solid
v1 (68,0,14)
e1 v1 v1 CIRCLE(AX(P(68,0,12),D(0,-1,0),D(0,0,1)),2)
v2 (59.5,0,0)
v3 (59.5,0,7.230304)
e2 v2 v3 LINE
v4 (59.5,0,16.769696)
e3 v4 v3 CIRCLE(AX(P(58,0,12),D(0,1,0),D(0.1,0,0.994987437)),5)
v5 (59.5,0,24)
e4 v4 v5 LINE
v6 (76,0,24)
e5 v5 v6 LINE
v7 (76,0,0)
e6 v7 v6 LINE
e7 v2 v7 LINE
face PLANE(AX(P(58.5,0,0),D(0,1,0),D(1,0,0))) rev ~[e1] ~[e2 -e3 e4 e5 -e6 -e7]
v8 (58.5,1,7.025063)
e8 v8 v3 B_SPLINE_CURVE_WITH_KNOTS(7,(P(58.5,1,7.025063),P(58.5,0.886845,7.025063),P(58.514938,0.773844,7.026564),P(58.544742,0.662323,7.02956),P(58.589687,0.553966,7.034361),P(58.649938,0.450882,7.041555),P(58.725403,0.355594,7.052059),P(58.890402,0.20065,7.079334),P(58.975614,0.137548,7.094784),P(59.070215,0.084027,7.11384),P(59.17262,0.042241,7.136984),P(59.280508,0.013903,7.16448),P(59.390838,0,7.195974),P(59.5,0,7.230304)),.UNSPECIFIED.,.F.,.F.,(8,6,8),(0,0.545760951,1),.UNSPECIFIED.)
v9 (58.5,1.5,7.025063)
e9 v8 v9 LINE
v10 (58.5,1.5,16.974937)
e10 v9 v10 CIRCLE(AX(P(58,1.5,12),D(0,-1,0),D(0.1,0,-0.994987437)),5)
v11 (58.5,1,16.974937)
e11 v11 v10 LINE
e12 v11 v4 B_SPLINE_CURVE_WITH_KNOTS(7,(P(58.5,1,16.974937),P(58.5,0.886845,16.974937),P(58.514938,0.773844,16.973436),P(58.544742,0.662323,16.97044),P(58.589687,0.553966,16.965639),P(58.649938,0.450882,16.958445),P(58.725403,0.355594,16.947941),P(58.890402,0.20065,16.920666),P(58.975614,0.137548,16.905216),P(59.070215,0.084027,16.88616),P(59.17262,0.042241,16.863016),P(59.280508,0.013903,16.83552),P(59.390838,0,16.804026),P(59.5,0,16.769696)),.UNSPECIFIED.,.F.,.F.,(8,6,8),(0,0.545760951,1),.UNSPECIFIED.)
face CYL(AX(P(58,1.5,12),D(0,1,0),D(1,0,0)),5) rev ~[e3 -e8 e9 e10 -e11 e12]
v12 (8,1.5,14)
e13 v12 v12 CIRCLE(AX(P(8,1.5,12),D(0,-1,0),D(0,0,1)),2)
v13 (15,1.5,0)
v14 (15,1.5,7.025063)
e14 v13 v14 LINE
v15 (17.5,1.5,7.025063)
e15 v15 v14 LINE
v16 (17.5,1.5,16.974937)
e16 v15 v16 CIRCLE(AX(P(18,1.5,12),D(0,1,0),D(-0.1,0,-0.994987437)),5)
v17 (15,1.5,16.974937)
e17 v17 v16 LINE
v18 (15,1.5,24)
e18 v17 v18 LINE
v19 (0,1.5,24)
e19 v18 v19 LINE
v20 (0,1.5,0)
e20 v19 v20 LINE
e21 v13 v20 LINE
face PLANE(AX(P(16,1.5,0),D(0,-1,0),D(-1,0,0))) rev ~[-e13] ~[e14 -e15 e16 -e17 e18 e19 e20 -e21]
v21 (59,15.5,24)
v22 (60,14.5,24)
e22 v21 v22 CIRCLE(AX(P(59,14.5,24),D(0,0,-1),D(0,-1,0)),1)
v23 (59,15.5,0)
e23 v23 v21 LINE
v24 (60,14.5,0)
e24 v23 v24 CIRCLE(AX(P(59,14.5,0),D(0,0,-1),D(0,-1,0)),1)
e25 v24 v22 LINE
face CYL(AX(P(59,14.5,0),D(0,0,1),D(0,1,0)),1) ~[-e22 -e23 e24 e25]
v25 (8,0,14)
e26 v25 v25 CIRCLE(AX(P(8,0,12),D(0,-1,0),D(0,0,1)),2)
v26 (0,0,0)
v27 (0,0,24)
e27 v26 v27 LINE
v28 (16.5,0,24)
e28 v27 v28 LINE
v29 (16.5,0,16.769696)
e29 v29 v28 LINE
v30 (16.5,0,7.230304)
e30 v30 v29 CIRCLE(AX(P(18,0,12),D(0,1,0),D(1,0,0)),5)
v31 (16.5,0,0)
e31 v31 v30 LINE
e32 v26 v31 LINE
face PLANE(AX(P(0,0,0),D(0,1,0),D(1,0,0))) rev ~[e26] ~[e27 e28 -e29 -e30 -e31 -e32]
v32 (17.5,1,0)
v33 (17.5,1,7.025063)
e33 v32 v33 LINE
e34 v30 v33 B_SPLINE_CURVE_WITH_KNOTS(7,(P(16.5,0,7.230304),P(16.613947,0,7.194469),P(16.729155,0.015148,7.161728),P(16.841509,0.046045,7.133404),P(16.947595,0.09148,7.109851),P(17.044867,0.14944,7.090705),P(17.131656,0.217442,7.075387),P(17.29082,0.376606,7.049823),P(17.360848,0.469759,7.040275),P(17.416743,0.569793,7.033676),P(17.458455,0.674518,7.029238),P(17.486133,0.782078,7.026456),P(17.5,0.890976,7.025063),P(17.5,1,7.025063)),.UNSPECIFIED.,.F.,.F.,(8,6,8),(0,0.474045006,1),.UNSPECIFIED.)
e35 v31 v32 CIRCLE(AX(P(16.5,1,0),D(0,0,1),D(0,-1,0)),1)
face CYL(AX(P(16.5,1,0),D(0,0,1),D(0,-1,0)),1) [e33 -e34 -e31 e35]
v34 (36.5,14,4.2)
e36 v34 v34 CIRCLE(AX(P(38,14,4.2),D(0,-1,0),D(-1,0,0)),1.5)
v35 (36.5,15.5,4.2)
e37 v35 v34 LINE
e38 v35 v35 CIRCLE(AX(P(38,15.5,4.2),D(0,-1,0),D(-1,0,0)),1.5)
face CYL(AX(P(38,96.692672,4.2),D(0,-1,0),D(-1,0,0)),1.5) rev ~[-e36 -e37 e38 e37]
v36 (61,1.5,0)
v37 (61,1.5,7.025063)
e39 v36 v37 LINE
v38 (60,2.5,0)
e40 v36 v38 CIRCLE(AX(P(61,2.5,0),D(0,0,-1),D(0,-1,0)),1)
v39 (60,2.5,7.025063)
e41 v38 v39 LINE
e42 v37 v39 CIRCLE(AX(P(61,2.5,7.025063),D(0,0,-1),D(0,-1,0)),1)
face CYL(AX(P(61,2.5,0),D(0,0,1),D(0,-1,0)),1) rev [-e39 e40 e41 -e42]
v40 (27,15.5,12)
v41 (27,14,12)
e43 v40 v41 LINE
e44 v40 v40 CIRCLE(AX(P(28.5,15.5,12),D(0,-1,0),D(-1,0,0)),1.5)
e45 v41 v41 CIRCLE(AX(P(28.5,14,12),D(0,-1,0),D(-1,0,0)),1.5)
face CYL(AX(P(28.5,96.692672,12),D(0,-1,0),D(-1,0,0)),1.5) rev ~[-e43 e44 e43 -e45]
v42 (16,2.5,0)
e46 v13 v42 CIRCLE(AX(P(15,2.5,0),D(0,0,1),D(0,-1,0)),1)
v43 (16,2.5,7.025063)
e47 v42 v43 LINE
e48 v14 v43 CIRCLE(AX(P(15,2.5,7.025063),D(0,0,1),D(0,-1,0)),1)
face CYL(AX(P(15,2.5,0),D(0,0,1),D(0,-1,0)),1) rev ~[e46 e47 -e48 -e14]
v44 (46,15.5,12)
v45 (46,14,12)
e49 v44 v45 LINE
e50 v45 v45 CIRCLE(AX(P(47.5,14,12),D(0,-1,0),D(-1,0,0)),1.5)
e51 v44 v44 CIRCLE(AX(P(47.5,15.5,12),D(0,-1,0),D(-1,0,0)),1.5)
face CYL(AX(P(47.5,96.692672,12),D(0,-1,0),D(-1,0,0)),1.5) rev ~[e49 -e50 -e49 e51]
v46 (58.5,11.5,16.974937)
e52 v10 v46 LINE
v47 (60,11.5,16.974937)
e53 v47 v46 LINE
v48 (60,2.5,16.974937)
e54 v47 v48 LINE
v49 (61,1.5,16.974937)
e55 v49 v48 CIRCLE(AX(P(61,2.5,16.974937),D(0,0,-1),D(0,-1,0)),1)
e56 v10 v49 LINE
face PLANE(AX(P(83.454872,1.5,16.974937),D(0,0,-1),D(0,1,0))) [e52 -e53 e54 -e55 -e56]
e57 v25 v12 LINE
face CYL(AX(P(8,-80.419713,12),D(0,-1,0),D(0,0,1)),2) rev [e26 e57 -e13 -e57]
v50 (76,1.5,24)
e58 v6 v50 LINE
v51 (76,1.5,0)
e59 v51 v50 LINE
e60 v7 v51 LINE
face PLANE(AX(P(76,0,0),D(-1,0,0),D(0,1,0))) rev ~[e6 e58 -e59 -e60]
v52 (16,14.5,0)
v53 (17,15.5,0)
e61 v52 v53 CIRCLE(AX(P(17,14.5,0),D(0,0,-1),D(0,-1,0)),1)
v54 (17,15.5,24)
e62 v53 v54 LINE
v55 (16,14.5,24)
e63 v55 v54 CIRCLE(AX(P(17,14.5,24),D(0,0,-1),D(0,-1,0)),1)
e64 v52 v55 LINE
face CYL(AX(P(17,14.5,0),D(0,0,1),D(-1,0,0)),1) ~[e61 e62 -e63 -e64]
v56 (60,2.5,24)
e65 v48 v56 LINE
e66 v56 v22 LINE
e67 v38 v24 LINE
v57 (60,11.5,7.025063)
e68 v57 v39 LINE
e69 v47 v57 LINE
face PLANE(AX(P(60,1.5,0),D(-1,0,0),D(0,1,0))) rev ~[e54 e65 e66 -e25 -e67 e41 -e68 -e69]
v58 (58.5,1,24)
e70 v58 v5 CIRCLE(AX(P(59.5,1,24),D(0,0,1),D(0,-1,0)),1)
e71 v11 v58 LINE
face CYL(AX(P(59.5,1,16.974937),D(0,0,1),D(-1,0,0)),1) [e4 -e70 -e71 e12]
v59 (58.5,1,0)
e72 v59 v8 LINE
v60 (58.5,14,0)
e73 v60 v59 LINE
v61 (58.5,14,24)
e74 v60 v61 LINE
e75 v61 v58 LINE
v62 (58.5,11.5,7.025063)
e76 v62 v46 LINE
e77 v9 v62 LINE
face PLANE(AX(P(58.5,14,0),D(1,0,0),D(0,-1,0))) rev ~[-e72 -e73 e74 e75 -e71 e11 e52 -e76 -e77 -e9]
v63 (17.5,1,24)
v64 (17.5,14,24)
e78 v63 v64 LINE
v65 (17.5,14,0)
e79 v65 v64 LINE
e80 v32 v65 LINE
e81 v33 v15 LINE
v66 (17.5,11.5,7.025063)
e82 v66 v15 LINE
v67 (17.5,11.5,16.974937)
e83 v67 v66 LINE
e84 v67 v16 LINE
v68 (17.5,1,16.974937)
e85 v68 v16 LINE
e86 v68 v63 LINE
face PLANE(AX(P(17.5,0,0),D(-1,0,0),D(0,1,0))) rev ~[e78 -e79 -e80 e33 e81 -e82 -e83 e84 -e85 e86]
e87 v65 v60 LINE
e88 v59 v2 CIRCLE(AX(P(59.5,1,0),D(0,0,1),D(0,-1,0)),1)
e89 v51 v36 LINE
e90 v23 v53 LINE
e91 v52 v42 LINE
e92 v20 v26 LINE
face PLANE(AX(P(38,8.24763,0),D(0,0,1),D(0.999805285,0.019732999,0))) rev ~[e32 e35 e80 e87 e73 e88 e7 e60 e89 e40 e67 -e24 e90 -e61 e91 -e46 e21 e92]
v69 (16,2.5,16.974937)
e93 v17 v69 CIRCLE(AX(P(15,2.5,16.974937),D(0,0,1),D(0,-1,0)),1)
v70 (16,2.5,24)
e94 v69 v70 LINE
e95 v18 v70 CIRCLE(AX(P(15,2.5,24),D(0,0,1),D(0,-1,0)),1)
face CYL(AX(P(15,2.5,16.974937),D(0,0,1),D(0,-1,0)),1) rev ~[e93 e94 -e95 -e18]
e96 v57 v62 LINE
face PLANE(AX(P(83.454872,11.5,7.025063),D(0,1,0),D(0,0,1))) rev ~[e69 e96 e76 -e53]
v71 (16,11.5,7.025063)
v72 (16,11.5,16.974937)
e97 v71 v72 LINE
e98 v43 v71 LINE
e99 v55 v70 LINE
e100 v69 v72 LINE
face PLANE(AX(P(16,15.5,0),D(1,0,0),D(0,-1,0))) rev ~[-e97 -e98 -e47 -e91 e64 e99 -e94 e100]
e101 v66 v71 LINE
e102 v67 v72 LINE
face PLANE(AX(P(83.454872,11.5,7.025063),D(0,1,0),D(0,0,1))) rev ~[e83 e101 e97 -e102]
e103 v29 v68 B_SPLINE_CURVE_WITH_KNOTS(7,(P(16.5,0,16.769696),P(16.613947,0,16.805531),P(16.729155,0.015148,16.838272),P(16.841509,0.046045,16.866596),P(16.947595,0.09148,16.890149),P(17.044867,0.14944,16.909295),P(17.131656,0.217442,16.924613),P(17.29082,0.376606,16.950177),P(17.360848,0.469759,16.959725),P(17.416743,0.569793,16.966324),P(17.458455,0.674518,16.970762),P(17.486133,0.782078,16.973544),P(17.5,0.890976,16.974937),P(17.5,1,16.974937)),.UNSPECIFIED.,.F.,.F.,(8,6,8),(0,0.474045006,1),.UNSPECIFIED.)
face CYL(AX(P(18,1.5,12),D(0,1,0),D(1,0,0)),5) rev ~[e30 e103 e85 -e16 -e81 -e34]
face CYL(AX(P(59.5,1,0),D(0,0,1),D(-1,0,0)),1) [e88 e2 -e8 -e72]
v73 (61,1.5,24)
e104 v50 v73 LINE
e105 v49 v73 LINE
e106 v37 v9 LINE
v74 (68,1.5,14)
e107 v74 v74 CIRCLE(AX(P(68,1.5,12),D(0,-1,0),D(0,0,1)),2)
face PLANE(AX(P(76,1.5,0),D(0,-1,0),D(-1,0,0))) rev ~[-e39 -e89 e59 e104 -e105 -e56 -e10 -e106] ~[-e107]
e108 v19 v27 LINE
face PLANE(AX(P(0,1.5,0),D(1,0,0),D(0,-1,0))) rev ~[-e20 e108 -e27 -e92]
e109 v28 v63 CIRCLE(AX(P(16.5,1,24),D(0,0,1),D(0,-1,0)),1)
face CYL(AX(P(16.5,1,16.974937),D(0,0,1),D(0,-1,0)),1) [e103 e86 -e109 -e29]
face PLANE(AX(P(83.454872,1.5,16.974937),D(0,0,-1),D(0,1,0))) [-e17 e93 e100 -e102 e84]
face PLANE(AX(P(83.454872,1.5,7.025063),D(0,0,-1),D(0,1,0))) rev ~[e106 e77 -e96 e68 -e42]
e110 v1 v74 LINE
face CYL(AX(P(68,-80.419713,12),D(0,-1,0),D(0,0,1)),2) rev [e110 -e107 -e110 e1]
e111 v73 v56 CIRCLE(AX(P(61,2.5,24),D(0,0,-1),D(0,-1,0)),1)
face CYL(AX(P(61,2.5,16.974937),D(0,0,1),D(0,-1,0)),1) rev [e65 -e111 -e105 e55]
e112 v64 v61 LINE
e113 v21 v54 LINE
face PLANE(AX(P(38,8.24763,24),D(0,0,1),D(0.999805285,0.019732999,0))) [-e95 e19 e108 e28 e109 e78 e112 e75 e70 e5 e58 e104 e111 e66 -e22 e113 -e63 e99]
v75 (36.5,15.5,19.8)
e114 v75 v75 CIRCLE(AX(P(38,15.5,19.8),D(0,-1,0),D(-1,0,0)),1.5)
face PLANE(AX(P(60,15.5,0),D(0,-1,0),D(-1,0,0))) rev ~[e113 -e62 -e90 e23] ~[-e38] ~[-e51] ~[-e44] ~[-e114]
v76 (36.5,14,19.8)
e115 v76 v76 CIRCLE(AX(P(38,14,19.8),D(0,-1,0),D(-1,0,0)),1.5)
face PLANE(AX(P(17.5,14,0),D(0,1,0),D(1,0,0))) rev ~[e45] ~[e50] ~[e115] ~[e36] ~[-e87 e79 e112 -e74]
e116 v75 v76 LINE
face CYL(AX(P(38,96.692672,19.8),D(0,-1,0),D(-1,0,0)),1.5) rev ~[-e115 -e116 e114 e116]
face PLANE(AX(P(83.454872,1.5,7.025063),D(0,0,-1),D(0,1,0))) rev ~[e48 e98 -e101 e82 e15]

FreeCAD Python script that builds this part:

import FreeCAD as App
import Part
import Sketcher

V = App.Vector


def edges_at(feature, points):
    """Names of the edges that pass closest to the given points."""
    edges = feature.Shape.Edges
    near = lambda p: min(range(len(edges)), key=lambda i: edges[i].distToShape(Part.Vertex(*p))[0])
    return sorted({f"Edge{near(p) + 1}" for p in points})


def add_polygon(sketch, points):
    """Adds a closed chain of lines whose ends are joined by coincident constraints."""
    first, n = sketch.GeometryCount, len(points)
    for a, b in zip(points, points[1:] + points[:1]):
        sketch.addGeometry(Part.LineSegment(App.Vector(*a, 0), App.Vector(*b, 0)), False)
    for i in range(n):
        sketch.addConstraint(Sketcher.Constraint("Coincident", first + i, 2, first + (i + 1) % n, 1))

doc = App.newDocument("Part")
body = doc.addObject("PartDesign::Body", "Body")

sketch1 = doc.addObject("Sketcher::SketchObject", "Sketch")
body.addObject(sketch1)
sketch1.AttachmentSupport = (doc.XY_Plane, [""])
sketch1.MapMode = "FlatFace"
add_polygon(sketch1, [(0, 0), (17.5, 0), (17.5, 14), (58.5, 14), (58.5, 0), (76, 0), (76, 1.5), (60, 1.5), (60, 15.5), (16, 15.5), (16, 1.5), (0, 1.5)])
sketch1.addConstraint([
    Sketcher.Constraint("Horizontal", 0),
    Sketcher.Constraint("Vertical", 1),
    Sketcher.Constraint("Horizontal", 2),
    Sketcher.Constraint("Vertical", 3),
    Sketcher.Constraint("Horizontal", 4),
    Sketcher.Constraint("Vertical", 5),
    Sketcher.Constraint("Horizontal", 6),
    Sketcher.Constraint("Vertical", 7),
    Sketcher.Constraint("Horizontal", 8),
    Sketcher.Constraint("Vertical", 9),
    Sketcher.Constraint("Horizontal", 10),
    Sketcher.Constraint("Vertical", 11),
    Sketcher.Constraint("Coincident", 11, 2, -1, 1),
    Sketcher.Constraint("PointOnObject", 3, 2, -1),
    Sketcher.Constraint("Horizontal", 6, 2, 9, 2),
    Sketcher.Constraint("Equal", 0, 4),
    Sketcher.Constraint("Equal", 6, 10),
    Sketcher.Constraint("Equal", 3, 7),
    Sketcher.Constraint("DistanceX", 2, 1, 2, 2, 41.0),
    Sketcher.Constraint("DistanceX", 6, 2, 6, 1, 16.0),
    Sketcher.Constraint("DistanceX", 8, 2, 8, 1, 44.0),
    Sketcher.Constraint("DistanceY", 1, 1, 1, 2, 14.0),
    Sketcher.Constraint("DistanceY", 5, 1, 5, 2, 1.5),
])
pad1 = doc.addObject("PartDesign::Pad", "Pad")
body.addObject(pad1)
pad1.Profile = sketch1
pad1.Length = 24

sketch2 = doc.addObject("Sketcher::SketchObject", "Sketch001")
body.addObject(sketch2)
sketch2.AttachmentSupport = (doc.XZ_Plane, [""])
sketch2.MapMode = "FlatFace"
sketch2.AttachmentOffset = App.Placement(V(0, 0, -1.5), App.Rotation())
sketch2.addGeometry([
    Part.Circle(V(8, 12, 0), V(0, 0, 1), 2),
    Part.Circle(V(68, 12, 0), V(0, 0, 1), 2),
], False)
sketch2.addConstraint([
    Sketcher.Constraint("Equal", 0, 1),
    Sketcher.Constraint("Horizontal", 0, 3, 1, 3),
    Sketcher.Constraint("Diameter", 0, 4.0),
    Sketcher.Constraint("DistanceX", -1, 1, 0, 3, 8.0),
    Sketcher.Constraint("DistanceY", -1, 1, 0, 3, 12.0),
    Sketcher.Constraint("DistanceX", -1, 1, 1, 3, 68.0),
])
pocket1 = doc.addObject("PartDesign::Pocket", "Pocket")
body.addObject(pocket1)
pocket1.Profile = sketch2
pocket1.Type = "ThroughAll"
pocket1.Midplane = True

sketch3 = doc.addObject("Sketcher::SketchObject", "Sketch002")
body.addObject(sketch3)
sketch3.AttachmentSupport = (doc.XZ_Plane, [""])
sketch3.MapMode = "FlatFace"
sketch3.AttachmentOffset = App.Placement(V(0, 0, -15.5), App.Rotation())
sketch3.addGeometry([
    Part.Circle(V(28.5, 12, 0), V(0, 0, 1), 1.5),
    Part.Circle(V(47.5, 12, 0), V(0, 0, 1), 1.5),
    Part.Circle(V(38, 19.8, 0), V(0, 0, 1), 1.5),
    Part.Circle(V(38, 4.2, 0), V(0, 0, 1), 1.5),
], False)
sketch3.addConstraint([
    Sketcher.Constraint("Equal", 0, 1),
    Sketcher.Constraint("Equal", 1, 2),
    Sketcher.Constraint("Equal", 2, 3),
    Sketcher.Constraint("Horizontal", 0, 3, 1, 3),
    Sketcher.Constraint("Vertical", 2, 3, 3, 3),
    Sketcher.Constraint("Diameter", 0, 3.0),
    Sketcher.Constraint("DistanceY", -1, 1, 0, 3, 12.0),
    Sketcher.Constraint("DistanceX", -1, 1, 2, 3, 38.0),
    Sketcher.Constraint("DistanceX", 0, 3, 1, 3, 19.0),
    Sketcher.Constraint("DistanceX", -1, 1, 0, 3, 28.5),
    Sketcher.Constraint("DistanceY", -1, 1, 2, 3, 19.8),
    Sketcher.Constraint("DistanceY", -1, 1, 3, 3, 4.2),
])
doc.recompute()
hole = doc.addObject("PartDesign::Hole", "Hole")
body.addObject(hole)
hole.Profile = sketch3
hole.ThreadType = "None"
hole.Diameter = 3
hole.DepthType = "ThroughAll"
hole.Reversed = True

sketch4 = doc.addObject("Sketcher::SketchObject", "Sketch003")
body.addObject(sketch4)
sketch4.AttachmentSupport = (doc.XZ_Plane, [""])
sketch4.MapMode = "FlatFace"
sketch4.AttachmentOffset = App.Placement(V(0, 0, -1.5), App.Rotation())
sketch4.addGeometry([
    Part.Circle(V(18, 12, 0), V(0, 0, 1), 5),
    Part.Circle(V(58, 12, 0), V(0, 0, 1), 5),
], False)
sketch4.addConstraint([
    Sketcher.Constraint("Equal", 0, 1),
    Sketcher.Constraint("Horizontal", 0, 3, 1, 3),
    Sketcher.Constraint("Diameter", 0, 10.0),
    Sketcher.Constraint("DistanceX", -1, 1, 0, 3, 18.0),
    Sketcher.Constraint("DistanceY", -1, 1, 0, 3, 12.0),
    Sketcher.Constraint("DistanceX", -1, 1, 1, 3, 58.0),
])
pocket2 = doc.addObject("PartDesign::Pocket", "Pocket001")
body.addObject(pocket2)
pocket2.Profile = sketch4
pocket2.Length = 1.5
pocket2.Reversed = True

sketch5 = doc.addObject("Sketcher::SketchObject", "Sketch004")
body.addObject(sketch5)
sketch5.AttachmentSupport = (doc.YZ_Plane, [""])
sketch5.MapMode = "FlatFace"
sketch5.AttachmentOffset = App.Placement(V(0, 0, 16), App.Rotation())
add_polygon(sketch5, [(12, 7), (2, 7), (2, 17), (12, 17)])
sketch5.addConstraint([
    Sketcher.Constraint("Horizontal", 0),
    Sketcher.Constraint("Vertical", 1),
    Sketcher.Constraint("Horizontal", 2),
    Sketcher.Constraint("Vertical", 3),
    Sketcher.Constraint("DistanceX", 0, 2, 0, 1, 10.0),
    Sketcher.Constraint("DistanceX", -1, 1, 0, 2, 1.5),
    Sketcher.Constraint("DistanceY", 1, 1, 1, 2, 9.949874),
    Sketcher.Constraint("DistanceY", -1, 1, 0, 2, 7.025063),
])
pocket3 = doc.addObject("PartDesign::Pocket", "Pocket002")
body.addObject(pocket3)
pocket3.Profile = sketch5
pocket3.Type = "ThroughAll"
pocket3.Midplane = True
doc.recompute()

fillet = doc.addObject("PartDesign::Fillet", "Fillet")
body.addObject(fillet)
fillet.Base = (pocket3, edges_at(pocket3, [
    (17.5, 0, 3.513),
    (17.5, 0, 20.487),
    (58.5, 0, 3.513),
    (58.5, 0, 20.487),
    (16, 15.5, 12),
    (60, 15.5, 12),
    (60, 1.5, 20.487),
    (60, 1.5, 3.513),
    (16, 1.5, 20.487),
    (16, 1.5, 3.513),
]))
fillet.Radius = 1

doc.recompute()
